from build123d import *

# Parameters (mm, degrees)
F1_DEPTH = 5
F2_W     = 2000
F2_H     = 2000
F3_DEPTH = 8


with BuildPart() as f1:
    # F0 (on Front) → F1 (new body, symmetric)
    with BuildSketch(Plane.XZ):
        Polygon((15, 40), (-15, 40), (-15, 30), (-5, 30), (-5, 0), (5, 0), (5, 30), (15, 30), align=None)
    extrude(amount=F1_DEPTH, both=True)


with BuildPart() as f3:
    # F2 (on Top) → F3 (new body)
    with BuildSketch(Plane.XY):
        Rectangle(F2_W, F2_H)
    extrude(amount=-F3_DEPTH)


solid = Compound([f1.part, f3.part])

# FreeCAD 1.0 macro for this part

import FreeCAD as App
import Part
import Sketcher
from FreeCAD import Vector
Q = App.Units.Quantity


def add_polygon(sketch, points):
    """Adds a closed chain of lines whose ends are joined by coincident constraints."""
    first, n = sketch.GeometryCount, len(points)
    for a, b in zip(points, points[1:] + points[:1]):
        sketch.addGeometry(Part.LineSegment(App.Vector(*a, 0), App.Vector(*b, 0)), False)
    for i in range(n):
        sketch.addConstraint(Sketcher.Constraint("Coincident", first + i, 2, first + (i + 1) % n, 1))

doc = App.newDocument("Part")
body = doc.addObject("PartDesign::Body", "Body")

# Sketch on XZ plane
sketch1 = body.newObject("Sketcher::SketchObject", "Sketch")
sketch1.AttachmentSupport = (doc.getObject("XZ_Plane"), [""])
sketch1.MapMode = "FlatFace"
add_polygon(sketch1, [(15, 40), (-15, 40), (-15, 30), (-5, 30), (-5, 0), (5, 0), (5, 30), (15, 30)])  # lines 0-7
sketch1.addConstraint([
    Sketcher.Constraint("Horizontal", 0),
    Sketcher.Constraint("Vertical", 1),
    Sketcher.Constraint("Horizontal", 2),
    Sketcher.Constraint("Vertical", 3),
    Sketcher.Constraint("Horizontal", 4),
    Sketcher.Constraint("Vertical", 5),
    Sketcher.Constraint("Horizontal", 6),
    Sketcher.Constraint("Vertical", 7),
    Sketcher.Constraint("Symmetric", 3, 2, 4, 2, -1, 1),
    Sketcher.Constraint("Symmetric", 1, 2, 6, 2, -2),
    Sketcher.Constraint("Equal", 2, 4),
    Sketcher.Constraint("Equal", 6, 1),
    Sketcher.Constraint("Equal", 0, 3),
    Sketcher.Constraint("DistanceX", 0, 2, 0, 1, Q("30 mm")),
])
pad1 = body.newObject("PartDesign::Pad", "Pad")
pad1.Profile = sketch1
pad1.Length = 10
pad1.Midplane = True
body2 = doc.addObject("PartDesign::Body", "Body001")

# Sketch on XY plane
sketch2 = body2.newObject("Sketcher::SketchObject", "Sketch001")
sketch2.AttachmentSupport = (doc.getObject("XY_Plane001"), [""])
sketch2.MapMode = "FlatFace"
add_polygon(sketch2, [(-1000, 1000), (-1000, -1000), (1000, -1000), (1000, 1000)])  # lines 0-3
sketch2.addConstraint([
    Sketcher.Constraint("Vertical", 0),
    Sketcher.Constraint("Horizontal", 1),
    Sketcher.Constraint("Vertical", 2),
    Sketcher.Constraint("Horizontal", 3),
    Sketcher.Constraint("Symmetric", 0, 2, 2, 2, -1, 1),
    Sketcher.Constraint("Equal", 3, 0),
    Sketcher.Constraint("DistanceX", 1, 1, 1, 2, Q("2000 mm")),
])
pad2 = body2.newObject("PartDesign::Pad", "Pad001")
pad2.Profile = sketch2
pad2.Length = 8
pad2.Reversed = True

doc.recompute()
